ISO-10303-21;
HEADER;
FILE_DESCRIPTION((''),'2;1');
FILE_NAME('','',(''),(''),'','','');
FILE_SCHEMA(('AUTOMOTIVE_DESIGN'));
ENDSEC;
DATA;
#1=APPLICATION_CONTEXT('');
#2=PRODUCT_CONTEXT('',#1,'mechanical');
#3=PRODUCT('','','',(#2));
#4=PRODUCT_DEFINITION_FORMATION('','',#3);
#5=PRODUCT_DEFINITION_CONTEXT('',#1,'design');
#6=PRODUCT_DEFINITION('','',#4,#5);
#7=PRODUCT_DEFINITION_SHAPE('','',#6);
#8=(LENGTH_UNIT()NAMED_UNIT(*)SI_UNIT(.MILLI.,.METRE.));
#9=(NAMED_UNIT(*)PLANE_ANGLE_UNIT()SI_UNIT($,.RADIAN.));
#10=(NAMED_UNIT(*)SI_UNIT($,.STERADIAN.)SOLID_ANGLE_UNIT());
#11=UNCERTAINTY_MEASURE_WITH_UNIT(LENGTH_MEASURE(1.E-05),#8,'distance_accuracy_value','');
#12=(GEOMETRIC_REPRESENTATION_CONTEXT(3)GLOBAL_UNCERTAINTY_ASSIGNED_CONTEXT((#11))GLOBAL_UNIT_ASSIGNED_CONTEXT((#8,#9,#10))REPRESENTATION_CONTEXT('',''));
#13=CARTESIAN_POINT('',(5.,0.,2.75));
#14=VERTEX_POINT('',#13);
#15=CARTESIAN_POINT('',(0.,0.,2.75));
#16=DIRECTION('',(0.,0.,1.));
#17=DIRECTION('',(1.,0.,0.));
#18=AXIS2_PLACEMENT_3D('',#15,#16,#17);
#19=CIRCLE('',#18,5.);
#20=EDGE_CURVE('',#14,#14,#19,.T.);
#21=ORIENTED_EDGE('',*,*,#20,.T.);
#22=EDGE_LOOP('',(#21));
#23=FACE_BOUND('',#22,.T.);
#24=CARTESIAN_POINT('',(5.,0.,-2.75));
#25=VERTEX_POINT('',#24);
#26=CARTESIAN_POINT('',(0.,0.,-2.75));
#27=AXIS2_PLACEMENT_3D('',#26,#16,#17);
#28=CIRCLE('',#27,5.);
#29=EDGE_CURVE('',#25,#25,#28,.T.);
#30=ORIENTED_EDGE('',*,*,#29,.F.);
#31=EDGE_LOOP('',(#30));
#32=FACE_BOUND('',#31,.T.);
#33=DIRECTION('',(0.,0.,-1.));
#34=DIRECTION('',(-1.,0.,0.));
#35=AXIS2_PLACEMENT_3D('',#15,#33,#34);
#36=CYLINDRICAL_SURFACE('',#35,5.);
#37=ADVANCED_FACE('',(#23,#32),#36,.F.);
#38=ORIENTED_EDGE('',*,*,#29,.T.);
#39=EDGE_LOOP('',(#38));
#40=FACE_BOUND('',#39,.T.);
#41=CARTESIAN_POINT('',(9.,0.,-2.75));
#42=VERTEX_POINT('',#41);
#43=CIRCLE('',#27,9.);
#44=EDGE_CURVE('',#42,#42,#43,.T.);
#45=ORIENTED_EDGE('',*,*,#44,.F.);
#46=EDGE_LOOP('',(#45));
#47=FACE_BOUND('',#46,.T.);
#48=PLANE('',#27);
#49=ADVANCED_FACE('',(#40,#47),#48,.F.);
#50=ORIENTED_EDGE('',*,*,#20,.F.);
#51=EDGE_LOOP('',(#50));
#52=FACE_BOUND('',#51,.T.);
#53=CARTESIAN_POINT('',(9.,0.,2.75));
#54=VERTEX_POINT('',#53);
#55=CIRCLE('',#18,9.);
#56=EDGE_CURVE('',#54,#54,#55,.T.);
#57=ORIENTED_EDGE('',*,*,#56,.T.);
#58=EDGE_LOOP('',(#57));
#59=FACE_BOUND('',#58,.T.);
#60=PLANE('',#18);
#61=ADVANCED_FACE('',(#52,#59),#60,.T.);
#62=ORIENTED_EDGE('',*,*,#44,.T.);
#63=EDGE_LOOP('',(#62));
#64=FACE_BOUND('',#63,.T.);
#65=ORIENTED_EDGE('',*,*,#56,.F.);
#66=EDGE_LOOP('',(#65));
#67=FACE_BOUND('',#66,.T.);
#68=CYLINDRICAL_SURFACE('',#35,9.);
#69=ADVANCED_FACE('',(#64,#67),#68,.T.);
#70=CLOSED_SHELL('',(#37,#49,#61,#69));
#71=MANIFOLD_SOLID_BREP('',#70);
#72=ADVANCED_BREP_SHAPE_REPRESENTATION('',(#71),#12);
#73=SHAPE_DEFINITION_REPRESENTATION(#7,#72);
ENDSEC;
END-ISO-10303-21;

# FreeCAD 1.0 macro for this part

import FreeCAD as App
import Part
import Sketcher

doc = App.newDocument("Part")
body = doc.addObject("PartDesign::Body", "Body")

sketch1 = doc.addObject("Sketcher::SketchObject", "Sketch")
body.addObject(sketch1)
sketch1.AttachmentSupport = (doc.XY_Plane, [""])
sketch1.MapMode = "FlatFace"
sketch1.addGeometry(Part.Circle(App.Vector(0, 0, 0), App.Vector(0, 0, 1), 9), False)
sketch1.addGeometry(Part.Circle(App.Vector(0, 0, 0), App.Vector(0, 0, 1), 5), False)
sketch1.addConstraint(Sketcher.Constraint("Coincident", 0, 3, -1, 1))
sketch1.addConstraint(Sketcher.Constraint("Coincident", 1, 3, -1, 1))
sketch1.addConstraint(Sketcher.Constraint("Diameter", 0, 18.0))
sketch1.addConstraint(Sketcher.Constraint("Diameter", 1, 10.0))
pad1 = doc.addObject("PartDesign::Pad", "Pad")
body.addObject(pad1)
pad1.Profile = sketch1
pad1.Length = 5.5
pad1.Midplane = True

doc.recompute()
